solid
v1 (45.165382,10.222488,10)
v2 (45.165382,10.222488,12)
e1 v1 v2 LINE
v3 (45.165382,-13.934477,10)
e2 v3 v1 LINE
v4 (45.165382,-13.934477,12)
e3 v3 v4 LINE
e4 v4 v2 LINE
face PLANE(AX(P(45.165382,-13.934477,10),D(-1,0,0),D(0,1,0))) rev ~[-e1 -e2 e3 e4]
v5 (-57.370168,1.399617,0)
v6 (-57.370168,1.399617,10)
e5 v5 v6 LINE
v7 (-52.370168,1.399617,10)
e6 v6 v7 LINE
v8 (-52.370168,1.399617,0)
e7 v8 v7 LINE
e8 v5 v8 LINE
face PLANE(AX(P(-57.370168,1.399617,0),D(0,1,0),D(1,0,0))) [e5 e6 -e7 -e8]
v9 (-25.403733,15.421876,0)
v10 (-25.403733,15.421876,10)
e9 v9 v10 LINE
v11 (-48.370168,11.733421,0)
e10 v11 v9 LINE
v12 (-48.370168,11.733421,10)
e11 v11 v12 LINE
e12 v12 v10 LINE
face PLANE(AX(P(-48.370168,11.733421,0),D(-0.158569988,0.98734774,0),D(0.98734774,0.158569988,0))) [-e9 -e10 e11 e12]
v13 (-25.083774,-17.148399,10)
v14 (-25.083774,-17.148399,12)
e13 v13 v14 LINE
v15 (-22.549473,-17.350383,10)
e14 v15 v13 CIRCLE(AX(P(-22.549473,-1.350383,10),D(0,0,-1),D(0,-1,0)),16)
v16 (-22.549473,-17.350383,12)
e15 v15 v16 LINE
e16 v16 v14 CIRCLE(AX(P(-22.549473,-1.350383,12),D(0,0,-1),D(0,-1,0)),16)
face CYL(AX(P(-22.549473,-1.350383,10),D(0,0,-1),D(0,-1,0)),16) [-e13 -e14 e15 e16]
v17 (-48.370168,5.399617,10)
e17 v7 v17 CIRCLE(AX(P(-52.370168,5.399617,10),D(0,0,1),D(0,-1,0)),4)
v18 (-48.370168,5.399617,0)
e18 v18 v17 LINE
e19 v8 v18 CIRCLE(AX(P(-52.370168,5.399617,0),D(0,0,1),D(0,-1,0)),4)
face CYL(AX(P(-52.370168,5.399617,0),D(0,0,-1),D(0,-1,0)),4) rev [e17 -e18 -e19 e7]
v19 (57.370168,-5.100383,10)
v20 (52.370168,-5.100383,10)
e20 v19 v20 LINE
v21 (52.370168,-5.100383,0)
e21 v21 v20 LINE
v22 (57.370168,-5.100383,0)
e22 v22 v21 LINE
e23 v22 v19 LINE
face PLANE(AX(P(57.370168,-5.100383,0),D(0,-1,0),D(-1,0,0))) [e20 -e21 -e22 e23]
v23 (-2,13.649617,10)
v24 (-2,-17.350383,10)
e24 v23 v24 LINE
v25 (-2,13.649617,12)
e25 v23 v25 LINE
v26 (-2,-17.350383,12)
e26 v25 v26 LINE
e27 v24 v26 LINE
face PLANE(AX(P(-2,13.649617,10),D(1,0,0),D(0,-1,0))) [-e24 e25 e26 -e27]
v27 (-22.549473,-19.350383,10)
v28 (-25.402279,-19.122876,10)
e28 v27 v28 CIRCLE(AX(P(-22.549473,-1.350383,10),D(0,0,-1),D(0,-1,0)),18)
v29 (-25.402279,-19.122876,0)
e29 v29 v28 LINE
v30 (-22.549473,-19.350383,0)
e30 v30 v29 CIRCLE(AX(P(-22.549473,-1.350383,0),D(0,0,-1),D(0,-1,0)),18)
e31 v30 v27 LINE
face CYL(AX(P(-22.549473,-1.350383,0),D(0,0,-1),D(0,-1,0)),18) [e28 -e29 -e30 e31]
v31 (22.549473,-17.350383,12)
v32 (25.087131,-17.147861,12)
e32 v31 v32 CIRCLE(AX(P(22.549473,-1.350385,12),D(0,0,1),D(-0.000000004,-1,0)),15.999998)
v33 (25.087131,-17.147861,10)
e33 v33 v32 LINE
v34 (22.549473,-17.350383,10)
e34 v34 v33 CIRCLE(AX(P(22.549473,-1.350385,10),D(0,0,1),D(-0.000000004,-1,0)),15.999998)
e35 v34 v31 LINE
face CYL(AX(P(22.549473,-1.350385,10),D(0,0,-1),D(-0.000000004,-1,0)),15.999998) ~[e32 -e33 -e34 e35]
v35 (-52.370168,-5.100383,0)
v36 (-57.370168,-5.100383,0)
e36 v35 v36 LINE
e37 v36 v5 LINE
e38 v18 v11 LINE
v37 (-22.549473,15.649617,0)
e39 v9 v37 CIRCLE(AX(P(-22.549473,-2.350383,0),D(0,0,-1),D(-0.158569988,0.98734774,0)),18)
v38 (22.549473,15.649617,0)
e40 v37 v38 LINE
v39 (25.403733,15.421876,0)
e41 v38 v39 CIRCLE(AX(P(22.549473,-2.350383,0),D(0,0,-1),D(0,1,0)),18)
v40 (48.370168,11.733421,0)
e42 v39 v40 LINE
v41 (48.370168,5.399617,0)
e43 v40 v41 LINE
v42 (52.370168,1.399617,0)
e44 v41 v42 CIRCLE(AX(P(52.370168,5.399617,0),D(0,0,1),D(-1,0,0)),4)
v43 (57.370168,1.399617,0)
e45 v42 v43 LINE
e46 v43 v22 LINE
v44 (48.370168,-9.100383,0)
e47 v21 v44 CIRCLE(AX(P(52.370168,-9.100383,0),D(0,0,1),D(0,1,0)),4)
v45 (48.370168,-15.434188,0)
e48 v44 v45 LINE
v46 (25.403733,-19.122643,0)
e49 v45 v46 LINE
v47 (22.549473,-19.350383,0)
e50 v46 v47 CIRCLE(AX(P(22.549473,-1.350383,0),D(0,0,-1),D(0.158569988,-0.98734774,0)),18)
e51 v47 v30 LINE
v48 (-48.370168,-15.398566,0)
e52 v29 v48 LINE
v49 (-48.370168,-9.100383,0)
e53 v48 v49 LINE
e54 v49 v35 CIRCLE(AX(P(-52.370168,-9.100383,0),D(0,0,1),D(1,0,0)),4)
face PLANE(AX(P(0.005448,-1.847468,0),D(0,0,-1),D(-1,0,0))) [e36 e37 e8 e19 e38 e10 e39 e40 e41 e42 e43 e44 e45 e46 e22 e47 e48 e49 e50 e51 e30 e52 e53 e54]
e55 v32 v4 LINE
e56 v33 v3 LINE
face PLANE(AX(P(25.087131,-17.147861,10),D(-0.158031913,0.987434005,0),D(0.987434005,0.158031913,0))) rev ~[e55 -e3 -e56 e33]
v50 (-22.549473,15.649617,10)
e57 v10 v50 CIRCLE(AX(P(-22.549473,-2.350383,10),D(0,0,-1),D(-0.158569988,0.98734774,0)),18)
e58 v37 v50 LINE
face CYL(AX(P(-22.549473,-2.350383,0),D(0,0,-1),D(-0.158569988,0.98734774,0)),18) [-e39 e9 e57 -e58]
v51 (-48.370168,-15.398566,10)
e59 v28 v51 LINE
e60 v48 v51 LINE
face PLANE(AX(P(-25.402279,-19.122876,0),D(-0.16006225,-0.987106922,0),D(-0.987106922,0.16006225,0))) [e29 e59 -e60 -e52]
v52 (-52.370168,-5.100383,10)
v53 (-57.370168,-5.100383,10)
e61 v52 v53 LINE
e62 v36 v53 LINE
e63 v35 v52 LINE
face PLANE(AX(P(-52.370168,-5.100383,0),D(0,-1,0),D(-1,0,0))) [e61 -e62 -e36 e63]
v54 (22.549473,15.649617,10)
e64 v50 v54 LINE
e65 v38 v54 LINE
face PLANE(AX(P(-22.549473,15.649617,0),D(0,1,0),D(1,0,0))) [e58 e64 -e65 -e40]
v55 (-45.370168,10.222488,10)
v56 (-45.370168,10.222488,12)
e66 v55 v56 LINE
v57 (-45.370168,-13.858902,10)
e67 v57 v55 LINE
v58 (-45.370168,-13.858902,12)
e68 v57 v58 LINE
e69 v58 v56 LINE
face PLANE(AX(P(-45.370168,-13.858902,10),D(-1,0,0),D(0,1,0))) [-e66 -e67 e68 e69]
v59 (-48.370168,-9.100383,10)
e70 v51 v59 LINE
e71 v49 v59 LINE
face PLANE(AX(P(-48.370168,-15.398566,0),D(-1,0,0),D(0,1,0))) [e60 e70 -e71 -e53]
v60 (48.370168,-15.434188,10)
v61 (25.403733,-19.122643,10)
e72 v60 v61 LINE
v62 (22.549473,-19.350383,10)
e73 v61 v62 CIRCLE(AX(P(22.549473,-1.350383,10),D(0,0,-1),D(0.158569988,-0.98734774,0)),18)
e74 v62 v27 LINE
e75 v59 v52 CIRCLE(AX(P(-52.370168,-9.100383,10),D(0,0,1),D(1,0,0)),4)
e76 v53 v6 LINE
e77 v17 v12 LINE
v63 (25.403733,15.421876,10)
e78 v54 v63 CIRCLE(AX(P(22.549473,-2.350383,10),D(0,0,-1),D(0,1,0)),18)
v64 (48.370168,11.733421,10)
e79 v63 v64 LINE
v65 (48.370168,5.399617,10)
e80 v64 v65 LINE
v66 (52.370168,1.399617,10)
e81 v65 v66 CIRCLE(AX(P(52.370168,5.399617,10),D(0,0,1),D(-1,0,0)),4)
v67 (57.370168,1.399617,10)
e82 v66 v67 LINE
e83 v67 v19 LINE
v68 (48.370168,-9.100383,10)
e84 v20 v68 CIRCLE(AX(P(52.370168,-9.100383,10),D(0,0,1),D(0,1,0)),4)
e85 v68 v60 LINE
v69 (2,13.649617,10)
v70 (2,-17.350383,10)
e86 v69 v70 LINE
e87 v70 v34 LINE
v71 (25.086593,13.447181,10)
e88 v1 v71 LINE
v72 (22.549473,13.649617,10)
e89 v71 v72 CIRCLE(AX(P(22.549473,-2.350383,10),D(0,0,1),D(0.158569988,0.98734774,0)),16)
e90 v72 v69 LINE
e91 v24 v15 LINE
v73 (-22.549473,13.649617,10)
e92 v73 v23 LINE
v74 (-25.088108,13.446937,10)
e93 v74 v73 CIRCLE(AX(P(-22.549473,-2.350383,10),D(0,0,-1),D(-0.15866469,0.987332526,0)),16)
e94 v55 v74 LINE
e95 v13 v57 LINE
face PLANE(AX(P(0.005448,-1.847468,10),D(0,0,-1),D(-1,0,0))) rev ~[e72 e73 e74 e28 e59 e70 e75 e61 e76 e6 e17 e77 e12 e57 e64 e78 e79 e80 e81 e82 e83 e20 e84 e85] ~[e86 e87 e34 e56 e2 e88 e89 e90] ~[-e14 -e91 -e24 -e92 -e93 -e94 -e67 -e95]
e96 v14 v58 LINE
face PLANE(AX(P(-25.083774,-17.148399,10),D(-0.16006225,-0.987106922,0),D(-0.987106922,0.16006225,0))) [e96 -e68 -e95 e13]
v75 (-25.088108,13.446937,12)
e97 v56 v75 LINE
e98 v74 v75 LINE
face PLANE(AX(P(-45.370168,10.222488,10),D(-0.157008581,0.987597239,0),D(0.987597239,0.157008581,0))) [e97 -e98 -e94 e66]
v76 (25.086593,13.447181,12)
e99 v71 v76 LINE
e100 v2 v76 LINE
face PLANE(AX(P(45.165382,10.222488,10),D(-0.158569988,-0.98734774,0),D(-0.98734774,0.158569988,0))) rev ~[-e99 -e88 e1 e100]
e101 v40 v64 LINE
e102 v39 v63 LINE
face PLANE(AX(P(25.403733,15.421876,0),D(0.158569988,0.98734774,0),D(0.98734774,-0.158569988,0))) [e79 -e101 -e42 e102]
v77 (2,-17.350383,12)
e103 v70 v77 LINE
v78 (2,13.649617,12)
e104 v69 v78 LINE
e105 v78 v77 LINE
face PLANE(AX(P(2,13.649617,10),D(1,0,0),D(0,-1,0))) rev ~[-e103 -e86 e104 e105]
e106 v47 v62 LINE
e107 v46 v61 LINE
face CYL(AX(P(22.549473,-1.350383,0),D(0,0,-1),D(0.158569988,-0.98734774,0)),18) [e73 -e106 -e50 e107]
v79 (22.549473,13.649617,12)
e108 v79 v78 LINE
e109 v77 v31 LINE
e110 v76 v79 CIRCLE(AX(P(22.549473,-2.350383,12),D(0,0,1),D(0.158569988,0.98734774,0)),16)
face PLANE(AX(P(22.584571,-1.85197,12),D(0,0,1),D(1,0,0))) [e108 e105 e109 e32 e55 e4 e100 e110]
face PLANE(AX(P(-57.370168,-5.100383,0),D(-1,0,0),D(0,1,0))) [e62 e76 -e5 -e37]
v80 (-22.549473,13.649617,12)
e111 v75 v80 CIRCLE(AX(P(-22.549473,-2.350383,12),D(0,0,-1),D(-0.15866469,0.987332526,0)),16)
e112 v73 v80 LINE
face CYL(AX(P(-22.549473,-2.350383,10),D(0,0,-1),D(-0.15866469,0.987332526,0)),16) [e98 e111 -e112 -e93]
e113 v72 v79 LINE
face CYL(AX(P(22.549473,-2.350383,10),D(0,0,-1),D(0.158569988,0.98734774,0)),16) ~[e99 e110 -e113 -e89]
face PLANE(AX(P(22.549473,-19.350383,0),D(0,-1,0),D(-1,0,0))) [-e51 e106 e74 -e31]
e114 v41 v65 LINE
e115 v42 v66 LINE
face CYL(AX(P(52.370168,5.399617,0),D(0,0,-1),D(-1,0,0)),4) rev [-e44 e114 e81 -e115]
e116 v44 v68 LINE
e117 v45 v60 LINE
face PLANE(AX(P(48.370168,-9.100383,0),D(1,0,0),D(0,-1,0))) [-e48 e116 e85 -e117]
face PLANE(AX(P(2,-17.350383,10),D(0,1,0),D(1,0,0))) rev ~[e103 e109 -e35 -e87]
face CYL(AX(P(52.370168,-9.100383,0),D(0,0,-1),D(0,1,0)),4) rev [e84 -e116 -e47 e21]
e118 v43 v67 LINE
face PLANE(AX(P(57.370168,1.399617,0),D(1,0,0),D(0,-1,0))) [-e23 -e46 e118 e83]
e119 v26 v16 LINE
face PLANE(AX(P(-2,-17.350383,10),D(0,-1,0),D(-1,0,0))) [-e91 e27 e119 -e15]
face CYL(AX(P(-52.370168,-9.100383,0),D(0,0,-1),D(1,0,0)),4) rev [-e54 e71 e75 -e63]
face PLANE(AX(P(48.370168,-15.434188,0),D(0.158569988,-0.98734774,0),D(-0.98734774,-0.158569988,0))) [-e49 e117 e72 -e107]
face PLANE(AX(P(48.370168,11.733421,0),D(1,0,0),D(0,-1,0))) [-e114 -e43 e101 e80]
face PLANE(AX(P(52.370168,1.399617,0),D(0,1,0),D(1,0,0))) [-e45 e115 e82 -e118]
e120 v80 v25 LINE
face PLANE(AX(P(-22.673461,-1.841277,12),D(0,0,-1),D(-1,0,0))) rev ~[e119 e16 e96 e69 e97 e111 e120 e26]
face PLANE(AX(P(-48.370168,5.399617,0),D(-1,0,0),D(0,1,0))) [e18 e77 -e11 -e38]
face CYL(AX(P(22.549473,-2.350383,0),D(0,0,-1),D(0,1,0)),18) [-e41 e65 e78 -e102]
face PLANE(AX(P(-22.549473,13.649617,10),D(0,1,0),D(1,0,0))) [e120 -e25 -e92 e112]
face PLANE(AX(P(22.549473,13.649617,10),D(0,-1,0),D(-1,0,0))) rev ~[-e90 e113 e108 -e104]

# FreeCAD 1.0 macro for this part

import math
import FreeCAD as App
import Part
import Sketcher

V = App.Vector

doc = App.newDocument("Part")
params = doc.addObject("Spreadsheet::Sheet", "Params")
for row, (alias, value) in enumerate([
    ("sketch1_radius", "4 mm"),
    ("sketch1_radius2", "18 mm"),
    ("sketch1_width", "5 mm"),
    ("sketch1_height", "6.5 mm"),
    ("pad1_length", "10 mm"),
    ("sketch2_radius", "16 mm"),
    ("sketch2_height", "31 mm"),
    ("pad2_length", "2 mm"),
], start=1):
    params.set(f"A{row}", alias)
    params.set(f"B{row}", "=" + value)
    params.setAlias(f"B{row}", alias)

body = doc.addObject("PartDesign::Body", "Body")

# Sketch on XY plane
sketch1 = body.newObject("Sketcher::SketchObject", "Sketch")
sketch1.AttachmentSupport = (doc.getObject("XY_Plane"), [""])
sketch1.MapMode = "FlatFace"
sketch1.addGeometry([
    Part.LineSegment(V(-57.4, -5.1, 0), V(-52.4, -5.1, 0)),  # 0
    Part.ArcOfCircle(Part.Circle(V(-52.4, -9.1, 0), V(0, 0, 1), 4), math.radians(0), math.radians(90)),  # 1
    Part.LineSegment(V(-48.4, -9.1, 0), V(-48.4, -15.4, 0)),  # 2
    Part.LineSegment(V(-48.4, -15.4, 0), V(-25.4, -19.1, 0)),  # 3
    Part.ArcOfCircle(Part.Circle(V(-22.5, -1.4, 0), V(0, 0, 1), 18), math.radians(-99.12), math.radians(-90)),  # 4
    Part.LineSegment(V(-22.5, -19.4, 0), V(22.5, -19.4, 0)),  # 5
    Part.ArcOfCircle(Part.Circle(V(22.5, -1.4, 0), V(0, 0, 1), 18), math.radians(-90), math.radians(-80.88)),  # 6
    Part.LineSegment(V(25.4, -19.1, 0), V(48.4, -15.4, 0)),  # 7
    Part.LineSegment(V(48.4, -15.4, 0), V(48.4, -9.1, 0)),  # 8
    Part.ArcOfCircle(Part.Circle(V(52.4, -9.1, 0), V(0, 0, 1), 4), math.radians(90), math.radians(180)),  # 9
    Part.LineSegment(V(52.4, -5.1, 0), V(57.4, -5.1, 0)),  # 10
    Part.LineSegment(V(57.4, -5.1, 0), V(57.4, 1.4, 0)),  # 11
    Part.LineSegment(V(57.4, 1.4, 0), V(52.4, 1.4, 0)),  # 12
    Part.ArcOfCircle(Part.Circle(V(52.4, 5.4, 0), V(0, 0, 1), 4), math.radians(180), math.radians(270)),  # 13
    Part.LineSegment(V(48.4, 5.4, 0), V(48.4, 11.7, 0)),  # 14
    Part.LineSegment(V(48.4, 11.7, 0), V(25.4, 15.4, 0)),  # 15
    Part.ArcOfCircle(Part.Circle(V(22.5, -2.4, 0), V(0, 0, 1), 18), math.radians(80.88), math.radians(90)),  # 16
    Part.LineSegment(V(22.5, 15.6, 0), V(-22.5, 15.6, 0)),  # 17
    Part.ArcOfCircle(Part.Circle(V(-22.5, -2.4, 0), V(0, 0, 1), 18), math.radians(90), math.radians(99.12)),  # 18
    Part.LineSegment(V(-25.4, 15.4, 0), V(-48.4, 11.7, 0)),  # 19
    Part.LineSegment(V(-48.4, 11.7, 0), V(-48.4, 5.4, 0)),  # 20
    Part.ArcOfCircle(Part.Circle(V(-52.4, 5.4, 0), V(0, 0, 1), 4), math.radians(-90), math.radians(0)),  # 21
    Part.LineSegment(V(-52.4, 1.4, 0), V(-57.4, 1.4, 0)),  # 22
    Part.LineSegment(V(-57.4, 1.4, 0), V(-57.4, -5.1, 0)),  # 23
], False)
sketch1.addConstraint([
    Sketcher.Constraint("Tangent", 0, 2, 1, 2),
    Sketcher.Constraint("Tangent", 1, 1, 2, 1),
    Sketcher.Constraint("Coincident", 2, 2, 3, 1),
    Sketcher.Constraint("Coincident", 3, 2, 4, 1),
    Sketcher.Constraint("Tangent", 4, 2, 5, 1),
    Sketcher.Constraint("Tangent", 5, 2, 6, 1),
    Sketcher.Constraint("Tangent", 6, 2, 7, 1),
    Sketcher.Constraint("Coincident", 7, 2, 8, 1),
    Sketcher.Constraint("Tangent", 8, 2, 9, 2),
    Sketcher.Constraint("Tangent", 9, 1, 10, 1),
    Sketcher.Constraint("Coincident", 10, 2, 11, 1),
    Sketcher.Constraint("Coincident", 11, 2, 12, 1),
    Sketcher.Constraint("Tangent", 12, 2, 13, 2),
    Sketcher.Constraint("Tangent", 13, 1, 14, 1),
    Sketcher.Constraint("Coincident", 14, 2, 15, 1),
    Sketcher.Constraint("Tangent", 15, 2, 16, 1),
    Sketcher.Constraint("Tangent", 16, 2, 17, 1),
    Sketcher.Constraint("Tangent", 17, 2, 18, 1),
    Sketcher.Constraint("Tangent", 18, 2, 19, 1),
    Sketcher.Constraint("Coincident", 19, 2, 20, 1),
    Sketcher.Constraint("Tangent", 20, 2, 21, 2),
    Sketcher.Constraint("Tangent", 21, 1, 22, 1),
    Sketcher.Constraint("Coincident", 22, 2, 23, 1),
    Sketcher.Constraint("Coincident", 23, 2, 0, 1),
    Sketcher.Constraint("Horizontal", 0),
    Sketcher.Constraint("Vertical", 2),
    Sketcher.Constraint("Horizontal", 5),
    Sketcher.Constraint("Vertical", 8),
    Sketcher.Constraint("Horizontal", 10),
    Sketcher.Constraint("Vertical", 11),
    Sketcher.Constraint("Horizontal", 12),
    Sketcher.Constraint("Vertical", 14),
    Sketcher.Constraint("Horizontal", 17),
    Sketcher.Constraint("Vertical", 20),
    Sketcher.Constraint("Horizontal", 22),
    Sketcher.Constraint("Vertical", 23),
    Sketcher.Constraint("Equal", 4, 6),
    Sketcher.Constraint("Equal", 1, 9),
    Sketcher.Constraint("Equal", 9, 13),
    Sketcher.Constraint("Equal", 6, 16),
    Sketcher.Constraint("Equal", 16, 18),
    Sketcher.Constraint("Equal", 13, 21),
    Sketcher.Constraint("Symmetric", 1, 3, 9, 3, -2),
    Sketcher.Constraint("Symmetric", 13, 3, 21, 3, -2),
    Sketcher.Constraint("Symmetric", 15, 2, 18, 2, -2),
    Sketcher.Constraint("Parallel", 7, 19),
    Sketcher.Constraint("Vertical", 9, 3, 13, 3),
    Sketcher.Constraint("Vertical", 6, 3, 16, 3),
    Sketcher.Constraint("Vertical", 4, 3, 18, 3),
    Sketcher.Constraint("Equal", 0, 10),
    Sketcher.Constraint("Equal", 8, 14),
    Sketcher.Constraint("Radius", 1, 4.0),
    Sketcher.Constraint("Radius", 4, 18.0),
    Sketcher.Constraint("DistanceX", 0, 1, 0, 2, 5.0),
    Sketcher.Constraint("DistanceY", 11, 1, 11, 2, 6.5),
    Sketcher.Constraint("DistanceY", 16, 3, 6, 3, 1.0),
    Sketcher.Constraint("DistanceX", 5, 1, 5, 2, 45.098946),
    Sketcher.Constraint("DistanceY", 2, 2, 2, 1, 6.298183),
    Sketcher.Constraint("DistanceY", 8, 1, 8, 2, 6.333805),
    Sketcher.Constraint("DistanceX", 1, 3, -1, 1, 52.370168),
    Sketcher.Constraint("DistanceX", 3, 2, -1, 1, 25.402279),
    Sketcher.Constraint("DistanceY", -1, 1, 14, 2, 11.733421),
])
sketch1.setExpression("Constraints[51]", "Params.sketch1_radius")
sketch1.setExpression("Constraints[52]", "Params.sketch1_radius2")
sketch1.setExpression("Constraints[53]", "Params.sketch1_width")
sketch1.setExpression("Constraints[54]", "Params.sketch1_height")
pad1 = body.newObject("PartDesign::Pad", "Pad")
pad1.Profile = sketch1
pad1.setExpression("Length", "Params.pad1_length")

# Sketch on XY plane
sketch2 = body.newObject("Sketcher::SketchObject", "Sketch001")
sketch2.AttachmentSupport = (doc.getObject("XY_Plane"), [""])
sketch2.MapMode = "FlatFace"
sketch2.AttachmentOffset = App.Placement(V(0, 0, 10), App.Rotation())
sketch2.addGeometry([
    Part.LineSegment(V(-2, -17.4, 0), V(-2, 13.6, 0)),  # 0
    Part.LineSegment(V(-2, 13.6, 0), V(-22.5, 13.6, 0)),  # 1
    Part.ArcOfCircle(Part.Circle(V(-22.5, -2.4, 0), V(0, 0, 1), 16), math.radians(90), math.radians(99.13)),  # 2
    Part.LineSegment(V(-25.1, 13.4, 0), V(-45.4, 10.2, 0)),  # 3
    Part.LineSegment(V(-45.4, 10.2, 0), V(-45.4, -13.9, 0)),  # 4
    Part.LineSegment(V(-45.4, -13.9, 0), V(-25.1, -17.1, 0)),  # 5
    Part.ArcOfCircle(Part.Circle(V(-22.5, -1.4, 0), V(0, 0, 1), 16), math.radians(-99.11), math.radians(-90)),  # 6
    Part.LineSegment(V(-22.5, -17.4, 0), V(-2, -17.4, 0)),  # 7
    Part.LineSegment(V(2, 13.6, 0), V(2, -17.4, 0)),  # 8
    Part.LineSegment(V(2, -17.4, 0), V(22.5, -17.4, 0)),  # 9
    Part.ArcOfCircle(Part.Circle(V(22.5, -1.4, 0), V(0, 0, 1), 16), math.radians(-90), math.radians(-80.87)),  # 10
    Part.LineSegment(V(25.1, -17.1, 0), V(45.2, -13.9, 0)),  # 11
    Part.LineSegment(V(45.2, -13.9, 0), V(45.2, 10.2, 0)),  # 12
    Part.LineSegment(V(45.2, 10.2, 0), V(25.1, 13.4, 0)),  # 13
    Part.ArcOfCircle(Part.Circle(V(22.5, -2.4, 0), V(0, 0, 1), 16), math.radians(80.88), math.radians(90)),  # 14
    Part.LineSegment(V(22.5, 13.6, 0), V(2, 13.6, 0)),  # 15
], False)
sketch2.addConstraint([
    Sketcher.Constraint("Coincident", 0, 2, 1, 1),
    Sketcher.Constraint("Tangent", 1, 2, 2, 1),
    Sketcher.Constraint("Coincident", 2, 2, 3, 1),
    Sketcher.Constraint("Coincident", 3, 2, 4, 1),
    Sketcher.Constraint("Coincident", 4, 2, 5, 1),
    Sketcher.Constraint("Coincident", 5, 2, 6, 1),
    Sketcher.Constraint("Tangent", 6, 2, 7, 1),
    Sketcher.Constraint("Coincident", 7, 2, 0, 1),
    Sketcher.Constraint("Coincident", 8, 2, 9, 1),
    Sketcher.Constraint("Tangent", 9, 2, 10, 1),
    Sketcher.Constraint("Coincident", 10, 2, 11, 1),
    Sketcher.Constraint("Coincident", 11, 2, 12, 1),
    Sketcher.Constraint("Coincident", 12, 2, 13, 1),
    Sketcher.Constraint("Tangent", 13, 2, 14, 1),
    Sketcher.Constraint("Tangent", 14, 2, 15, 1),
    Sketcher.Constraint("Coincident", 15, 2, 8, 1),
    Sketcher.Constraint("Vertical", 0),
    Sketcher.Constraint("Horizontal", 1),
    Sketcher.Constraint("Vertical", 4),
    Sketcher.Constraint("Horizontal", 7),
    Sketcher.Constraint("Vertical", 8),
    Sketcher.Constraint("Horizontal", 9),
    Sketcher.Constraint("Vertical", 12),
    Sketcher.Constraint("Horizontal", 15),
    Sketcher.Constraint("Equal", 2, 6),
    Sketcher.Constraint("Equal", 6, 10),
    Sketcher.Constraint("Equal", 10, 14),
    Sketcher.Constraint("Symmetric", 6, 3, 10, 3, -2),
    Sketcher.Constraint("Symmetric", 2, 3, 14, 3, -2),
    Sketcher.Constraint("Horizontal", 3, 2, 12, 2),
    Sketcher.Constraint("Vertical", 2, 3, 6, 3),
    Sketcher.Constraint("Equal", 7, 9),
    Sketcher.Constraint("Radius", 2, 16.0),
    Sketcher.Constraint("DistanceY", 0, 1, 0, 2, 31.0),
    Sketcher.Constraint("DistanceX", 0, 2, -1, 1, 2.0),
    Sketcher.Constraint("DistanceY", 4, 2, 4, 1, 24.081389),
    Sketcher.Constraint("DistanceY", 4, 2, -1, 1, 13.858902),
    Sketcher.Constraint("DistanceY", 5, 2, -1, 1, 17.148399),
    Sketcher.Constraint("DistanceX", 5, 2, 2, 3, 2.534301),
    Sketcher.Constraint("DistanceX", 1, 2, 1, 1, 20.549473),
    Sketcher.Constraint("DistanceY", 12, 1, 12, 2, 24.156964),
    Sketcher.Constraint("DistanceX", 3, 2, -1, 1, 45.370168),
    Sketcher.Constraint("DistanceX", -1, 1, 10, 2, 25.087131),
    Sketcher.Constraint("DistanceX", -1, 1, 11, 2, 45.165382),
    Sketcher.Constraint("DistanceY", 2, 2, 1, 2, 0.20268),
])
sketch2.setExpression("Constraints[32]", "Params.sketch2_radius")
sketch2.setExpression("Constraints[33]", "Params.sketch2_height")
pad2 = body.newObject("PartDesign::Pad", "Pad001")
pad2.Profile = sketch2
pad2.setExpression("Length", "Params.pad2_length")

doc.recompute()
